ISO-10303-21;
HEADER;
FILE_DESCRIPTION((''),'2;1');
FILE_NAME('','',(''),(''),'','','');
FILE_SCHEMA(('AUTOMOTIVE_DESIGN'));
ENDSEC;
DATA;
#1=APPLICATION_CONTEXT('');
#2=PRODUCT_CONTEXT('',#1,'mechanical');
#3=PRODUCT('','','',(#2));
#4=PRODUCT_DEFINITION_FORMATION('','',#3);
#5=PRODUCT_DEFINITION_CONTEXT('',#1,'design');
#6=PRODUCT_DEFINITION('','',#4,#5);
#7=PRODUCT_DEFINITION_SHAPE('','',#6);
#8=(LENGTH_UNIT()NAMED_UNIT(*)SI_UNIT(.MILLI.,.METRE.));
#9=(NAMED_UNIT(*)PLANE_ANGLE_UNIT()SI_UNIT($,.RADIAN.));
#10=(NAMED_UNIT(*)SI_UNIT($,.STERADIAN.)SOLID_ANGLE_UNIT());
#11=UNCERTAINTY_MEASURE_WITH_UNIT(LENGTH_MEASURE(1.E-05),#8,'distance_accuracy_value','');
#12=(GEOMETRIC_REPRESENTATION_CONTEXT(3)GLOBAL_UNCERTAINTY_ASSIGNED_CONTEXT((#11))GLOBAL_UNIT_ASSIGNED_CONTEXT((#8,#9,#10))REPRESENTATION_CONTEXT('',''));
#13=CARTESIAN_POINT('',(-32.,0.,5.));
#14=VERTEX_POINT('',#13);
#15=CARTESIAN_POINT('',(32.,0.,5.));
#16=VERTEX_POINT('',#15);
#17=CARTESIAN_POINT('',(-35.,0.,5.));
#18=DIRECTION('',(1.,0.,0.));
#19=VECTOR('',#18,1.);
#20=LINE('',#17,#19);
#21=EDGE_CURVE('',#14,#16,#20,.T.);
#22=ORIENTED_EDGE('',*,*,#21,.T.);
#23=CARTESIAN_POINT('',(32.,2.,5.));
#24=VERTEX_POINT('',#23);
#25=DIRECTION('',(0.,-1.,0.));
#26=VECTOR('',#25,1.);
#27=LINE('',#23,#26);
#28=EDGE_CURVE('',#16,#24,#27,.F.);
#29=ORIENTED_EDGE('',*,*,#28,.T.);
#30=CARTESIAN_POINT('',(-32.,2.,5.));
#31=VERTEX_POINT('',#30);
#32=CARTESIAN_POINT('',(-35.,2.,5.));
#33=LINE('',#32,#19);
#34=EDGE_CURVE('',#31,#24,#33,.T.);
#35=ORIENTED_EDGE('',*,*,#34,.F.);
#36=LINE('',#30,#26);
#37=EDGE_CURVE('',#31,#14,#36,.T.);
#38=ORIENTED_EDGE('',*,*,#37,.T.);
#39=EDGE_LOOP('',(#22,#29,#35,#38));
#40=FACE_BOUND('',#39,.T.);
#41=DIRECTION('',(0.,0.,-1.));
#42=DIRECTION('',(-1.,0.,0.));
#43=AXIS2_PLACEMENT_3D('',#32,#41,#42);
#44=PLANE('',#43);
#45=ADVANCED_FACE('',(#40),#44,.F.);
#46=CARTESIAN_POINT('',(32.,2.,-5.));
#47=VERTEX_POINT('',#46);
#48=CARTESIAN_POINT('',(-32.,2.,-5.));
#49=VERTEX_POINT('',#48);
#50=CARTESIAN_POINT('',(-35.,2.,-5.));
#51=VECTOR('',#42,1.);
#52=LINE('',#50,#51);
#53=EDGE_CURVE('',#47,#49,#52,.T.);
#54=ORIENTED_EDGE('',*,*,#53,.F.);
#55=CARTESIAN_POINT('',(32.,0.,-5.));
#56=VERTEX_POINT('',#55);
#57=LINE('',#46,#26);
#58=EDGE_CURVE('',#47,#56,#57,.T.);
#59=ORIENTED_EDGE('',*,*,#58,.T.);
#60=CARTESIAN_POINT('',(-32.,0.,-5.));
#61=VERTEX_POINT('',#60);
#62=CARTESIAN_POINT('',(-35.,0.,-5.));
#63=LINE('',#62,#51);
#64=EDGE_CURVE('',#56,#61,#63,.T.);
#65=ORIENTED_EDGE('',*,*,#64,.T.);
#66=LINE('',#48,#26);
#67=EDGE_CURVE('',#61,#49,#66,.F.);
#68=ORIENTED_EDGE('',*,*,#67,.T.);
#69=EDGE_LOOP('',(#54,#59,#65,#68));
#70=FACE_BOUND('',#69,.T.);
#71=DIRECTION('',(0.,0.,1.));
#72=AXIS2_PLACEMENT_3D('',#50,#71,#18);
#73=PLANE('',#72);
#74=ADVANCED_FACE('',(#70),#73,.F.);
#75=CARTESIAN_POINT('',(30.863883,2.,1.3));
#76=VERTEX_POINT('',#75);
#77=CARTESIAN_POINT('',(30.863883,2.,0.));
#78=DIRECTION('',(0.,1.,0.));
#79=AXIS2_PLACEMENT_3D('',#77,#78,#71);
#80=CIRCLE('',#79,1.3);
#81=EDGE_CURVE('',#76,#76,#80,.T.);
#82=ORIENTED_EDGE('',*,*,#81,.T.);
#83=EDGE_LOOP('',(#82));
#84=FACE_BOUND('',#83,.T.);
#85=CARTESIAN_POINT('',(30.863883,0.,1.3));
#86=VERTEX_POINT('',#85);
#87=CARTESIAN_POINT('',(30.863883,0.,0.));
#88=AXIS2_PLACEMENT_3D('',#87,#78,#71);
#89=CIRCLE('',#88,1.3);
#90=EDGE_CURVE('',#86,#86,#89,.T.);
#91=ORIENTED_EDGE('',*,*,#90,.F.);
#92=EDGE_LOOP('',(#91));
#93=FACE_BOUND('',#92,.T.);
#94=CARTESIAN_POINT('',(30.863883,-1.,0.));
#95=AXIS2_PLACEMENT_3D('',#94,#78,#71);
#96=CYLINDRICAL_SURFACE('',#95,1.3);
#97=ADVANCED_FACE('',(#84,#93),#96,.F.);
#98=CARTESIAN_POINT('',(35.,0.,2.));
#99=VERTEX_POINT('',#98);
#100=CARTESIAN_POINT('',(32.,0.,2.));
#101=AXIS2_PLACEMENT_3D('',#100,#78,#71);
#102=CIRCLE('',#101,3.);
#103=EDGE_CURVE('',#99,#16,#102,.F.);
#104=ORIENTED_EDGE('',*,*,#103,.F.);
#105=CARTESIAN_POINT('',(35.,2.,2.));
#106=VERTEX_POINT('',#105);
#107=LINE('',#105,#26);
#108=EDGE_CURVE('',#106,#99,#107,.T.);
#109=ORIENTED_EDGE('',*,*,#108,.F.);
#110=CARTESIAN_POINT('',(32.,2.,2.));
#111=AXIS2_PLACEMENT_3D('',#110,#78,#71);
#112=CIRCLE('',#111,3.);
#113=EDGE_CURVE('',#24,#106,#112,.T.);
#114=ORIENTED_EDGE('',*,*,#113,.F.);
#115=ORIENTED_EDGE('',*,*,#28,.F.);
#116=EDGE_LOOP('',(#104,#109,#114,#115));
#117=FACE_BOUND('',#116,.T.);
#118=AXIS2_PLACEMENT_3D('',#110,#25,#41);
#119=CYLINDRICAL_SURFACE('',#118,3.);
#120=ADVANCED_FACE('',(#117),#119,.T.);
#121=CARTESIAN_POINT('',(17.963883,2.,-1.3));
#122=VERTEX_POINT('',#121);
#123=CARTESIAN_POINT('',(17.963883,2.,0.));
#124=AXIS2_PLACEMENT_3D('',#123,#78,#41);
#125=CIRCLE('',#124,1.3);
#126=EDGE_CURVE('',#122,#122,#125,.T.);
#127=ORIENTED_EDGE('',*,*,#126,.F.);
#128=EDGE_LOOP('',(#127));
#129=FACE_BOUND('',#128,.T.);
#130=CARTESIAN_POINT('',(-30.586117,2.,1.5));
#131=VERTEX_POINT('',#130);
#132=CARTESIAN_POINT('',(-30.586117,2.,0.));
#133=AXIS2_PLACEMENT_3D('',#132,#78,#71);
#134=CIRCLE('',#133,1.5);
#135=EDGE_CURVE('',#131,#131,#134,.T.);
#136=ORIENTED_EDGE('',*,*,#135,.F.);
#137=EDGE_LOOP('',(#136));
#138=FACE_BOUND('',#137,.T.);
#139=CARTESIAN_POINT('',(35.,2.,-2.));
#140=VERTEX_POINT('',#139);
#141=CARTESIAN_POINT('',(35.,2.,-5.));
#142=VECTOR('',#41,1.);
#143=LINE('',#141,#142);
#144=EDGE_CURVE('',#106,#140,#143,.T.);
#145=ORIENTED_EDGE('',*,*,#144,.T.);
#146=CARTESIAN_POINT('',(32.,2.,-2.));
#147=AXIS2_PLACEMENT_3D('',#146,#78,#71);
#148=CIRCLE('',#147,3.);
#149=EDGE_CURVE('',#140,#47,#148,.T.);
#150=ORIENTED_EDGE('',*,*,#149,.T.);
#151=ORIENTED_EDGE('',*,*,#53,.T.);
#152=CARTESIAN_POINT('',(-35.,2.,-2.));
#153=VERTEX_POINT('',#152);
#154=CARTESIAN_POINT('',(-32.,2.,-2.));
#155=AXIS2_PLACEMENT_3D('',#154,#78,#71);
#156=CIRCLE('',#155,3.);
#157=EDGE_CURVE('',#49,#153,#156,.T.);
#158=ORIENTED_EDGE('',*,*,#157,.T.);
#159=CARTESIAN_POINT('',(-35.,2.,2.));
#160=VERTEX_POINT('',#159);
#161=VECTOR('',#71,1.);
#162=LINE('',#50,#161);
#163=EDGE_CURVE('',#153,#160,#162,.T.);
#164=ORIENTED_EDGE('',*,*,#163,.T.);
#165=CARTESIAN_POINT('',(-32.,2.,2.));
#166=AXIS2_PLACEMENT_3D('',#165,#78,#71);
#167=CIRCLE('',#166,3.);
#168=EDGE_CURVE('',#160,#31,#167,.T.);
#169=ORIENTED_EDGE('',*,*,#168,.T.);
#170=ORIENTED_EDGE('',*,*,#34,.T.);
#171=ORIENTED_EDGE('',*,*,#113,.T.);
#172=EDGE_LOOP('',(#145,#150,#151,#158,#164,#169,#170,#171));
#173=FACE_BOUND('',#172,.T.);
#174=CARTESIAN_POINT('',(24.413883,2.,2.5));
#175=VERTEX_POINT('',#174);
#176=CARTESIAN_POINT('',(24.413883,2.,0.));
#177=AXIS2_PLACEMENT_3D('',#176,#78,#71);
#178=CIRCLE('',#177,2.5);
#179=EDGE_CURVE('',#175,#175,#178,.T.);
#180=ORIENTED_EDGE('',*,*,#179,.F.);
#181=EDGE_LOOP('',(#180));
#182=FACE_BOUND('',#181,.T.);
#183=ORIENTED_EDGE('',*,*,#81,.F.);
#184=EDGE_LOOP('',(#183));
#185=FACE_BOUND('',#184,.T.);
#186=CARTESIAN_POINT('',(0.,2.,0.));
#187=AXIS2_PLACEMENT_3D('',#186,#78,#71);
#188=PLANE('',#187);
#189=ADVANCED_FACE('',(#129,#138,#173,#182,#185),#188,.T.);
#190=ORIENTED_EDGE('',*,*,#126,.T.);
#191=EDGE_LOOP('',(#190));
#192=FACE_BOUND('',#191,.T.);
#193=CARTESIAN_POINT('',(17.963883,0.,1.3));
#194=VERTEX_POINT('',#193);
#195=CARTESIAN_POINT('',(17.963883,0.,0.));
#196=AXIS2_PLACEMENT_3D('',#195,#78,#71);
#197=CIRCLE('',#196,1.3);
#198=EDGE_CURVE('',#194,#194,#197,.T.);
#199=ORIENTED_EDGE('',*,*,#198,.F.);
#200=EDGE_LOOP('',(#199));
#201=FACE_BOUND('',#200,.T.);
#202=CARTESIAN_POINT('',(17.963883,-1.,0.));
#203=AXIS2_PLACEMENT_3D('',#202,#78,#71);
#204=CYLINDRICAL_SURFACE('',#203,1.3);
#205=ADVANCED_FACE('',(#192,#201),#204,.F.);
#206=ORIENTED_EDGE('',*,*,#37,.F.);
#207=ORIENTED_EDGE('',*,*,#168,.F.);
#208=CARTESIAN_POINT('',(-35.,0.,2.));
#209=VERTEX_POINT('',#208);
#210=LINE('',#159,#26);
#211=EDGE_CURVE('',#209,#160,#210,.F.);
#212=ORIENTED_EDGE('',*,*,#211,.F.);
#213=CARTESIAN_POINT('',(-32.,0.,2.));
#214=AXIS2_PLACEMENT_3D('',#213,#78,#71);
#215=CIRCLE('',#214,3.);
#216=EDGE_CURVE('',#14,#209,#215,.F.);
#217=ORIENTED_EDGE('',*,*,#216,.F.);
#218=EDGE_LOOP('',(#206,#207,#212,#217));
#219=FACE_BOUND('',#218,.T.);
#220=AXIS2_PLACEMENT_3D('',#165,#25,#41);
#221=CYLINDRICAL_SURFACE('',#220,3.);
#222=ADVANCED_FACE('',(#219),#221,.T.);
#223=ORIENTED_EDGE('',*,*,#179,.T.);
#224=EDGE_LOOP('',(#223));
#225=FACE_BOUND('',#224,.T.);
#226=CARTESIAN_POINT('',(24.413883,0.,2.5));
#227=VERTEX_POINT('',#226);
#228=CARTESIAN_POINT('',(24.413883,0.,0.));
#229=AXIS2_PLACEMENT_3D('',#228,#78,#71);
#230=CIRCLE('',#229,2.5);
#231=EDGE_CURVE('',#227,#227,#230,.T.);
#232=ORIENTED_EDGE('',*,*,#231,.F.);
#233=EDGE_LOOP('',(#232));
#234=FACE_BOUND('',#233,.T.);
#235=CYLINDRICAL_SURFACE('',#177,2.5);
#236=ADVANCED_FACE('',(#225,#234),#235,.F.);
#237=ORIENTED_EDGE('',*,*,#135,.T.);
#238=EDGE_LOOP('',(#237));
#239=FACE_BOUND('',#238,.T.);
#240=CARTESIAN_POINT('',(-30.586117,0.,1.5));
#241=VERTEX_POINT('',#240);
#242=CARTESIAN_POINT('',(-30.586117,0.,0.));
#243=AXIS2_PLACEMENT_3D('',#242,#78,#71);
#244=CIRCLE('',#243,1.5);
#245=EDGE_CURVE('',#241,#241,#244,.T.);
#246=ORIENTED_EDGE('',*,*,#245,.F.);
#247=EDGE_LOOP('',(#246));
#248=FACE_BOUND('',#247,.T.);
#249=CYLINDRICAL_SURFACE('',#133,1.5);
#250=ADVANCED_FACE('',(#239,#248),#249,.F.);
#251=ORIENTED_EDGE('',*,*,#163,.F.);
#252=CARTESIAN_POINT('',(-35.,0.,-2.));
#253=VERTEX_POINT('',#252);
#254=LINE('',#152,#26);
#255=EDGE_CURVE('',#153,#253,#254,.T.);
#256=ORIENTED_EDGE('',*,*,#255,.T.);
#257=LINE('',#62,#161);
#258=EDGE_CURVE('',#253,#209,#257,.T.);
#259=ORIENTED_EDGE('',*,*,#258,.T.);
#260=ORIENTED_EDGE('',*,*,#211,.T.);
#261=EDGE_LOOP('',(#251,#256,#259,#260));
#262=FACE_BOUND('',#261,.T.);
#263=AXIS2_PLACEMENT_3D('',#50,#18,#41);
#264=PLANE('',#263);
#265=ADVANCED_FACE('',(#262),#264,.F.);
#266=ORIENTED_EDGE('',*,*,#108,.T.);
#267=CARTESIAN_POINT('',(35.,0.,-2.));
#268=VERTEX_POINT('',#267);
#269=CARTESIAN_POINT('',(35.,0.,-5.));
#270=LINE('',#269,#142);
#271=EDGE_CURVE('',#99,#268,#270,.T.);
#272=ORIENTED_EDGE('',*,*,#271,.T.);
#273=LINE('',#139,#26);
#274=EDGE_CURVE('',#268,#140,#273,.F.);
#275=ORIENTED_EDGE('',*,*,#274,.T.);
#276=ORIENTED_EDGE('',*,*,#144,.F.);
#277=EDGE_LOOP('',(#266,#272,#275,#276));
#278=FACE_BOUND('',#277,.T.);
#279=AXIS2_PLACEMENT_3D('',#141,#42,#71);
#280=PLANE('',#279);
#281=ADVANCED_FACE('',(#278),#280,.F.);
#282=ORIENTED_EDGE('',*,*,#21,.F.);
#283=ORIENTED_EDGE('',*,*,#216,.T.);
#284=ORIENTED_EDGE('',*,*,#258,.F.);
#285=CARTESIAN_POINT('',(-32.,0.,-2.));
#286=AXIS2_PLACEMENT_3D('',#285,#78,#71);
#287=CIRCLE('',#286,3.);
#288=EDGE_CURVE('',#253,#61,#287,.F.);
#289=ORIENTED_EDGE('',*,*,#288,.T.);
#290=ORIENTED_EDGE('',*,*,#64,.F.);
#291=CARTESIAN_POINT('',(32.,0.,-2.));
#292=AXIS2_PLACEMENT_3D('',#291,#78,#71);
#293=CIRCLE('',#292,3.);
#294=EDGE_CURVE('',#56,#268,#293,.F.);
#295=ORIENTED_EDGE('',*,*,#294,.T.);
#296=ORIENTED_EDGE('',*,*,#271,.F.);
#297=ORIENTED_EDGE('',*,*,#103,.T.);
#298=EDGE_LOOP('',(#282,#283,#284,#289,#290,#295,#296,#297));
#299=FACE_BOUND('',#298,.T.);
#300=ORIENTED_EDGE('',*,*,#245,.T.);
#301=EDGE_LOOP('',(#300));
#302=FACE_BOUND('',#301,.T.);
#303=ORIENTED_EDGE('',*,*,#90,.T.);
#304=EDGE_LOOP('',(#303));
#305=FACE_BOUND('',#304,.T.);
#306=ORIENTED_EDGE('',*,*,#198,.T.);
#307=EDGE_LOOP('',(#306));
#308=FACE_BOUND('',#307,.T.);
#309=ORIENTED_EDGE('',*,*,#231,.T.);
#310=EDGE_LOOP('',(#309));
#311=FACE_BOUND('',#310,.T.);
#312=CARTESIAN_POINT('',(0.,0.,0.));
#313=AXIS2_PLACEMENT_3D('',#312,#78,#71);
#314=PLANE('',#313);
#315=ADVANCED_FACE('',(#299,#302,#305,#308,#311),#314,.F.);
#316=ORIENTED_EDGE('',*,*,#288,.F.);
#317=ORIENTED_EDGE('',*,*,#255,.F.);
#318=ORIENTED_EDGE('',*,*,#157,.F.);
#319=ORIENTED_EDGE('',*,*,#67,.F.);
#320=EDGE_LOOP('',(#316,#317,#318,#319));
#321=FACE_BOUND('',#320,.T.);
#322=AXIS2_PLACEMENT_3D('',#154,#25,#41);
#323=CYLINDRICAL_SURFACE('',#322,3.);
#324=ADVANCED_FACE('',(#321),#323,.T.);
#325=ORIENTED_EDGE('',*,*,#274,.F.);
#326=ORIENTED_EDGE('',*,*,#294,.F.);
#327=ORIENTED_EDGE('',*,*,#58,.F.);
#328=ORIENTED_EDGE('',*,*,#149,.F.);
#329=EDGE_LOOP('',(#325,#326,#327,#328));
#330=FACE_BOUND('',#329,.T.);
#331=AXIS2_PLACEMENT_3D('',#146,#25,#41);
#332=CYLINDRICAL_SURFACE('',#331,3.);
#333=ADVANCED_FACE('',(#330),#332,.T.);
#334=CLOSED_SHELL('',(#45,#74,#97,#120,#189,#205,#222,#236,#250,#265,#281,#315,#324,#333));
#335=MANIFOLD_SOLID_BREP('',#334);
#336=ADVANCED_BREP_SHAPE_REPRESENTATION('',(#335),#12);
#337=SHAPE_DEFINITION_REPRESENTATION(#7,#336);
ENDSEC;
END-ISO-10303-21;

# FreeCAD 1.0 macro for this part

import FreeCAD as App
import Part
import Sketcher
Q = App.Units.Quantity


def edges_at(feature, points):
    """Names of the edges that pass closest to the given points."""
    edges = feature.Shape.Edges
    near = lambda p: min(range(len(edges)), key=lambda i: edges[i].distToShape(Part.Vertex(*p))[0])
    return sorted({f"Edge{near(p) + 1}" for p in points})

doc = App.newDocument("Part")
body = doc.addObject("PartDesign::Body", "Body")

# Sketch on XZ plane
sketch1 = body.newObject("Sketcher::SketchObject", "Sketch")
sketch1.AttachmentSupport = (doc.getObject("XZ_Plane"), [""])
sketch1.MapMode = "FlatFace"
sketch1.addGeometry(Part.LineSegment(App.Vector(-35, -5, 0), App.Vector(-35, 5, 0)), False)
sketch1.addGeometry(Part.LineSegment(App.Vector(-35, 5, 0), App.Vector(35, 5, 0)), False)
sketch1.addGeometry(Part.LineSegment(App.Vector(35, 5, 0), App.Vector(35, -5, 0)), False)
sketch1.addGeometry(Part.LineSegment(App.Vector(35, -5, 0), App.Vector(-35, -5, 0)), False)
sketch1.addConstraint(Sketcher.Constraint("Coincident", 0, 2, 1, 1))
sketch1.addConstraint(Sketcher.Constraint("Coincident", 1, 2, 2, 1))
sketch1.addConstraint(Sketcher.Constraint("Coincident", 2, 2, 3, 1))
sketch1.addConstraint(Sketcher.Constraint("Coincident", 3, 2, 0, 1))
sketch1.addConstraint(Sketcher.Constraint("Vertical", 0))
sketch1.addConstraint(Sketcher.Constraint("Horizontal", 1))
sketch1.addConstraint(Sketcher.Constraint("Vertical", 2))
sketch1.addConstraint(Sketcher.Constraint("Horizontal", 3))
sketch1.addConstraint(Sketcher.Constraint("Symmetric", 0, 2, 2, 2, -1, 1))
sketch1.addConstraint(Sketcher.Constraint("DistanceX", 1, 1, 1, 2, Q("70 mm")))
sketch1.addConstraint(Sketcher.Constraint("DistanceY", 0, 1, 0, 2, Q("10 mm")))
pad1 = body.newObject("PartDesign::Pad", "Pad")
pad1.Profile = sketch1
pad1.Length = 2
pad1.Reversed = True

# Sketch on XZ plane
sketch2 = body.newObject("Sketcher::SketchObject", "Sketch001")
sketch2.AttachmentSupport = (doc.getObject("XZ_Plane"), [""])
sketch2.MapMode = "FlatFace"
sketch2.AttachmentOffset = App.Placement(App.Vector(0, 0, -2), App.Rotation())
sketch2.addGeometry(Part.Circle(App.Vector(24.4, 0, 0), App.Vector(0, 0, 1), 2.5), False)
sketch2.addConstraint(Sketcher.Constraint("PointOnObject", 0, 3, -1))
sketch2.addConstraint(Sketcher.Constraint("Diameter", 0, Q("5 mm")))
sketch2.addConstraint(Sketcher.Constraint("DistanceX", -1, 1, 0, 3, Q("24.413883 mm")))
doc.recompute()
hole = body.newObject("PartDesign::Hole", "Hole")
hole.Profile = sketch2
hole.ThreadType = "None"
hole.Diameter = 5
hole.DepthType = "ThroughAll"
hole.Reversed = True

# Sketch on XZ plane
sketch3 = body.newObject("Sketcher::SketchObject", "Sketch002")
sketch3.AttachmentSupport = (doc.getObject("XZ_Plane"), [""])
sketch3.MapMode = "FlatFace"
sketch3.AttachmentOffset = App.Placement(App.Vector(0, 0, -2), App.Rotation())
sketch3.addGeometry(Part.Circle(App.Vector(-30.6, 0, 0), App.Vector(0, 0, 1), 1.5), False)
sketch3.addConstraint(Sketcher.Constraint("PointOnObject", 0, 3, -1))
sketch3.addConstraint(Sketcher.Constraint("Diameter", 0, Q("3 mm")))
sketch3.addConstraint(Sketcher.Constraint("DistanceX", 0, 3, -1, 1, Q("30.586117 mm")))
doc.recompute()
hole2 = body.newObject("PartDesign::Hole", "Hole001")
hole2.Profile = sketch3
hole2.ThreadType = "None"
hole2.Diameter = 3
hole2.DepthType = "ThroughAll"
hole2.Reversed = True

# Sketch on XZ plane
sketch4 = body.newObject("Sketcher::SketchObject", "Sketch003")
sketch4.AttachmentSupport = (doc.getObject("XZ_Plane"), [""])
sketch4.MapMode = "FlatFace"
sketch4.AttachmentOffset = App.Placement(App.Vector(0, 0, -2), App.Rotation())
sketch4.addGeometry(Part.Circle(App.Vector(30.9, 0, 0), App.Vector(0, 0, 1), 1.3), False)
sketch4.addGeometry(Part.Circle(App.Vector(18, 0, 0), App.Vector(0, 0, 1), 1.3), False)
sketch4.addConstraint(Sketcher.Constraint("Equal", 0, 1))
sketch4.addConstraint(Sketcher.Constraint("PointOnObject", 0, 3, -1))
sketch4.addConstraint(Sketcher.Constraint("PointOnObject", 1, 3, -1))
sketch4.addConstraint(Sketcher.Constraint("Diameter", 0, Q("2.6 mm")))
sketch4.addConstraint(Sketcher.Constraint("DistanceX", 1, 3, 0, 3, Q("12.9 mm")))
sketch4.addConstraint(Sketcher.Constraint("DistanceX", -1, 1, 0, 3, Q("30.863883 mm")))
pocket1 = body.newObject("PartDesign::Pocket", "Pocket")
pocket1.Profile = sketch4
pocket1.Length = 3
pocket1.Reversed = True
doc.recompute()

fillet = body.newObject("PartDesign::Fillet", "Fillet")
fillet.Base = (pocket1, edges_at(pocket1, [
    (35, 1, 5),
    (-35, 1, 5),
    (-35, 1, -5),
    (35, 1, -5),
]))
fillet.Radius = 3

doc.recompute()
